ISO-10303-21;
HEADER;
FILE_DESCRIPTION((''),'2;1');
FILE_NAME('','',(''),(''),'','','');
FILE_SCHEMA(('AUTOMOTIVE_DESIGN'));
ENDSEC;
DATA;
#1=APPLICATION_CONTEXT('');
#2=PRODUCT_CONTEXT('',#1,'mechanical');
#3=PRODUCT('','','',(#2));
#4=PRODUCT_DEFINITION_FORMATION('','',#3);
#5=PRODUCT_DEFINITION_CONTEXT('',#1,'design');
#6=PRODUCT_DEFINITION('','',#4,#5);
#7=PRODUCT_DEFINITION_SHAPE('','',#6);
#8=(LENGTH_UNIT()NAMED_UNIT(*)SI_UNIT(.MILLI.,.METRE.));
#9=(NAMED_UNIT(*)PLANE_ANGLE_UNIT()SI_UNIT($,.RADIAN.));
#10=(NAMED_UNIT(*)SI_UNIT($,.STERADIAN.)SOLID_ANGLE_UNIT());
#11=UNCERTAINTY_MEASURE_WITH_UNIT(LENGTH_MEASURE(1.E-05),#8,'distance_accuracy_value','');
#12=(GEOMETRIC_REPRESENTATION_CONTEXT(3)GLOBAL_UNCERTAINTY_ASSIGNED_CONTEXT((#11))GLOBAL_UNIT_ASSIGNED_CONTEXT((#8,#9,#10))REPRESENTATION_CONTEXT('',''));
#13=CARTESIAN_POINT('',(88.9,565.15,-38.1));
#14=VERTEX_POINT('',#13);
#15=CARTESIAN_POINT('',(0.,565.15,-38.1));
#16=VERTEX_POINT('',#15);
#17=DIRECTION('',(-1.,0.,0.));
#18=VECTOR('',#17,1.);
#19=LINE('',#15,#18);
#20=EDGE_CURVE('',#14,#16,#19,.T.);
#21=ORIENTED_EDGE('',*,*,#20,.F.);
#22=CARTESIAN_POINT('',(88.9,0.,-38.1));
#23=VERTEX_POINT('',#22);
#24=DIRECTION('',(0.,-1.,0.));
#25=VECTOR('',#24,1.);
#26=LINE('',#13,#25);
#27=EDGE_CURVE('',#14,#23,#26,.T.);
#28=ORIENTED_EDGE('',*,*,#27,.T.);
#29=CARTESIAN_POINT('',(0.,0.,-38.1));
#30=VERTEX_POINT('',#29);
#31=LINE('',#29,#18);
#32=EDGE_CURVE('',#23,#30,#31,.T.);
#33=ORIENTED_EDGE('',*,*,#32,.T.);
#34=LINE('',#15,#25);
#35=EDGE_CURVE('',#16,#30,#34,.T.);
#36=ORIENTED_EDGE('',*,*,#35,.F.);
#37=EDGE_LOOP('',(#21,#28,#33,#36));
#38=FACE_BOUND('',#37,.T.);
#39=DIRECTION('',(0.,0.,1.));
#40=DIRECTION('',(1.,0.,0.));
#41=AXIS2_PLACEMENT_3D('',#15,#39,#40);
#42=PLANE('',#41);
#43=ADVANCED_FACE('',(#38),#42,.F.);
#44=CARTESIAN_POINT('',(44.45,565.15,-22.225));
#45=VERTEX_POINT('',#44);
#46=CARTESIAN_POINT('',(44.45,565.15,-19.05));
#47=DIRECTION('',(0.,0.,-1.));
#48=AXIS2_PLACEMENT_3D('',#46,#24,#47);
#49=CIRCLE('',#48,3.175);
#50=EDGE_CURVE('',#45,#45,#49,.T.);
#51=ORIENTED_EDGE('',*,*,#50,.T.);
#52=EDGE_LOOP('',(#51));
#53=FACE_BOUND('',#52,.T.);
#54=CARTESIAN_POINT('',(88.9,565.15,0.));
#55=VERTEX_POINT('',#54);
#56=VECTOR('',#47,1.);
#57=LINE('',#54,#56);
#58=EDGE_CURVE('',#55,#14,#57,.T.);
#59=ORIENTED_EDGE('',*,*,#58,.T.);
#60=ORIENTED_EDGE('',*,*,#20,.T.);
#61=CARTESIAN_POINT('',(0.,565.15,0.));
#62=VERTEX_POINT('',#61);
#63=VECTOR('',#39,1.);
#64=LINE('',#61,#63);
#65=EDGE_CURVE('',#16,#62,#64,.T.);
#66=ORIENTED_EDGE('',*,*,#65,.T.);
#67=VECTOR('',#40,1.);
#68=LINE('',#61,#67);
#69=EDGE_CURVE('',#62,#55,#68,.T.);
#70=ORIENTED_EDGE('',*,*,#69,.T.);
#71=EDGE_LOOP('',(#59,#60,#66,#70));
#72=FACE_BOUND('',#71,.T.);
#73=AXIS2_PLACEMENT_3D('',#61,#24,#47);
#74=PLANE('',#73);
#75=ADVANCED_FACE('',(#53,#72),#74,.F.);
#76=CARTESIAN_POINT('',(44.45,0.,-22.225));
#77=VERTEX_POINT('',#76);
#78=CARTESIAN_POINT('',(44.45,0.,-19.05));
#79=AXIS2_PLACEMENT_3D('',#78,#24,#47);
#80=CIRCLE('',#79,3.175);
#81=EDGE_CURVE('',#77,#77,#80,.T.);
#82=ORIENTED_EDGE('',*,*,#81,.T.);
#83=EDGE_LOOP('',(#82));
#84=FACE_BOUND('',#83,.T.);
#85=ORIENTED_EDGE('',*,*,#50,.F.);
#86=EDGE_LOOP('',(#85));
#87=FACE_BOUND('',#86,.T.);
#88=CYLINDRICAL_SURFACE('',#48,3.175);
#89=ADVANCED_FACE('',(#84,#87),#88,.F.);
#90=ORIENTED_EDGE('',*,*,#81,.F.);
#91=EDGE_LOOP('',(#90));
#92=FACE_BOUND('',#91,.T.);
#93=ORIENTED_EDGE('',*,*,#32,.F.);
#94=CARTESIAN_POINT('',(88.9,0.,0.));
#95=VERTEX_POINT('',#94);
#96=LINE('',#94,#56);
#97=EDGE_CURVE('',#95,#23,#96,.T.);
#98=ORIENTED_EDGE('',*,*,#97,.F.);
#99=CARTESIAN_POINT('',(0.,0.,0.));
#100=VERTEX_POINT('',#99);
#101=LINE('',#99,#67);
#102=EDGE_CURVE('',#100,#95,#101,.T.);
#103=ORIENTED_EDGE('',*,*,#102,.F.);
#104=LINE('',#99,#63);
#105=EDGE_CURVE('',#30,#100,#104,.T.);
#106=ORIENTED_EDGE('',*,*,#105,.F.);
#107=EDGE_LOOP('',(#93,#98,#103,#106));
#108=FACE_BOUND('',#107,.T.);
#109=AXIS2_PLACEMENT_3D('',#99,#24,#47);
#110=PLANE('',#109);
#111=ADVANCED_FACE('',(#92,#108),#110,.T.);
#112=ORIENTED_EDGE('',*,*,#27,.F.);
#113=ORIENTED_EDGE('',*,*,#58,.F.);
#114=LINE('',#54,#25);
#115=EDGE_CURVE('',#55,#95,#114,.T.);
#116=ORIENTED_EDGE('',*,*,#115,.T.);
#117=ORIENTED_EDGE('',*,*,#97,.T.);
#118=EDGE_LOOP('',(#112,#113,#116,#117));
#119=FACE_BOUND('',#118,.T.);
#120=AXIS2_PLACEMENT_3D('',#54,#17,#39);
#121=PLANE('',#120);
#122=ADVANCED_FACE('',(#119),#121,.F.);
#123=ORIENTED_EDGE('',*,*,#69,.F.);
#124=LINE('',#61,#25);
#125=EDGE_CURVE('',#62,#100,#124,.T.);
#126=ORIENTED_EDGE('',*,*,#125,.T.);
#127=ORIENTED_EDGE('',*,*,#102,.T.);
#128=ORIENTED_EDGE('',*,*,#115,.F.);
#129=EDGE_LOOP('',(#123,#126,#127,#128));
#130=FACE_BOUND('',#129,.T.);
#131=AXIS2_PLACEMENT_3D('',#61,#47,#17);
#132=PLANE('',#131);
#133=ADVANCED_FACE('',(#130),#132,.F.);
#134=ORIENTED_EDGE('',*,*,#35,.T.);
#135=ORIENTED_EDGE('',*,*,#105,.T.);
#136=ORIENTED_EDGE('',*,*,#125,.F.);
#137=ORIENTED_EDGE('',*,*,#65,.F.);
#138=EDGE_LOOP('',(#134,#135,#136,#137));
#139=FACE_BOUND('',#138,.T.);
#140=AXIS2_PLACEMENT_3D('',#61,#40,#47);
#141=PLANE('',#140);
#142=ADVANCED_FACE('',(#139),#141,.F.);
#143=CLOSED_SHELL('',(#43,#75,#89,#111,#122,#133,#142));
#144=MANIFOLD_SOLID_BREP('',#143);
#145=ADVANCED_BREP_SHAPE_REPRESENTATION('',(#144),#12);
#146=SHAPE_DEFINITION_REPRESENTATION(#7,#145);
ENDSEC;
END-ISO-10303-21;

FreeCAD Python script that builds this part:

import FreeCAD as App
import Part
import Sketcher
from FreeCAD import Vector
Q = App.Units.Quantity


def add_polygon(sketch, points):
    """Adds a closed chain of lines whose ends are joined by coincident constraints."""
    first, n = sketch.GeometryCount, len(points)
    for a, b in zip(points, points[1:] + points[:1]):
        sketch.addGeometry(Part.LineSegment(App.Vector(*a, 0), App.Vector(*b, 0)), False)
    for i in range(n):
        sketch.addConstraint(Sketcher.Constraint("Coincident", first + i, 2, first + (i + 1) % n, 1))

doc = App.newDocument("Part")
body = doc.addObject("PartDesign::Body", "Body")

# Sketch on XZ plane
sketch1 = body.newObject("Sketcher::SketchObject", "Sketch")
sketch1.AttachmentSupport = (doc.getObject("XZ_Plane"), [""])
sketch1.MapMode = "FlatFace"
add_polygon(sketch1, [(0, -38), (0, 0), (89, 0), (89, -38)])  # lines 0-3
sketch1.addConstraint([
    Sketcher.Constraint("Vertical", 0),
    Sketcher.Constraint("Horizontal", 1),
    Sketcher.Constraint("Vertical", 2),
    Sketcher.Constraint("Horizontal", 3),
    Sketcher.Constraint("Coincident", 0, 2, -1, 1),
    Sketcher.Constraint("DistanceX", 1, 1, 1, 2, Q("3.5 in")),
    Sketcher.Constraint("DistanceY", 0, 1, 0, 2, Q("1.5 in")),
])
pad1 = body.newObject("PartDesign::Pad", "Pad")
pad1.Profile = sketch1
pad1.Length = Q("22.25 in")
pad1.Reversed = True

# Sketch on XZ plane
sketch2 = body.newObject("Sketcher::SketchObject", "Sketch001")
sketch2.AttachmentSupport = (doc.getObject("XZ_Plane"), [""])
sketch2.MapMode = "FlatFace"
sketch2.addGeometry(Part.Circle(Vector(44.5, -19.1, 0), Vector(0, 0, 1), 3.2), False)
sketch2.addConstraint([
    Sketcher.Constraint("Diameter", 0, Q("0.25 in")),
    Sketcher.Constraint("DistanceX", -1, 1, 0, 3, Q("1.75 in")),
    Sketcher.Constraint("DistanceY", 0, 3, -1, 1, Q("0.75 in")),
])
pocket1 = body.newObject("PartDesign::Pocket", "Pocket")
pocket1.Profile = sketch2
pocket1.Length = Q("22.25 in")

doc.recompute()
